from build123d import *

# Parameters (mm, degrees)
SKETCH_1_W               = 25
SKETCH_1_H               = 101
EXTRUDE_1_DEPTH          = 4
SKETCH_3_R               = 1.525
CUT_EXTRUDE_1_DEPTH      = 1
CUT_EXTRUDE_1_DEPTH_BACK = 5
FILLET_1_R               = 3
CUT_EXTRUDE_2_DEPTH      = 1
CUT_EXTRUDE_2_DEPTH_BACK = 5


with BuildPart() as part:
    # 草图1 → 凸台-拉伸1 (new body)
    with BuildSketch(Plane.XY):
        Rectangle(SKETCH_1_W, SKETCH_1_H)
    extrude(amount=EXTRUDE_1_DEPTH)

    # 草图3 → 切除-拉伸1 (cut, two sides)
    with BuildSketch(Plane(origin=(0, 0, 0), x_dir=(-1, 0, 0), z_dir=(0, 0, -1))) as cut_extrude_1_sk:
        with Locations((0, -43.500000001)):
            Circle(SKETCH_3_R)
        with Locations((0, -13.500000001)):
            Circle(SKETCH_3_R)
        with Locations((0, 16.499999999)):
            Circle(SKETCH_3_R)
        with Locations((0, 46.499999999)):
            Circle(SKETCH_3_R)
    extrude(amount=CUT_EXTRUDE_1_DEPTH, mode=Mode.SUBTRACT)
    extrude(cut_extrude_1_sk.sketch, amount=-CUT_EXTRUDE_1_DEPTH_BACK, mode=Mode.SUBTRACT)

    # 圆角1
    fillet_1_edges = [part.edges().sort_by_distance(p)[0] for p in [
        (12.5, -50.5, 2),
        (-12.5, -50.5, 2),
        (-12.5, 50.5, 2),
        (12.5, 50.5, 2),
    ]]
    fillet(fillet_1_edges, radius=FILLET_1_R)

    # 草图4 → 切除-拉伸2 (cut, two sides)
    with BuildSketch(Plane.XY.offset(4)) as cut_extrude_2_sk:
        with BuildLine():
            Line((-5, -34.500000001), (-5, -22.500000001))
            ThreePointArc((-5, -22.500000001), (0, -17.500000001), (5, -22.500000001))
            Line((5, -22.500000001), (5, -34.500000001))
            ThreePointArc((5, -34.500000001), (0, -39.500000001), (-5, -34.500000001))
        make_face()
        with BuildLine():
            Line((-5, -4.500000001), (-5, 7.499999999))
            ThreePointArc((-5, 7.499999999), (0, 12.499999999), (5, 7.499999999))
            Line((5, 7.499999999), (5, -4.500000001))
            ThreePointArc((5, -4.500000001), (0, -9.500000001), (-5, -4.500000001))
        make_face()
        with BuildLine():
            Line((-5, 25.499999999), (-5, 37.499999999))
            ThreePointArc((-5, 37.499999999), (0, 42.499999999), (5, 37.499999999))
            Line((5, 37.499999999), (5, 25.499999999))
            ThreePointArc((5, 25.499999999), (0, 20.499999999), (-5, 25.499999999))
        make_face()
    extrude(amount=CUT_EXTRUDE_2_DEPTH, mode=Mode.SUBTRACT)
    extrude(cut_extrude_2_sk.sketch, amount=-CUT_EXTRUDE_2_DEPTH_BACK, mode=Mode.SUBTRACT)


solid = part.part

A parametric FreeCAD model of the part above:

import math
import FreeCAD as App
import Part
import Sketcher

V = App.Vector


def edges_at(feature, points):
    """Names of the edges that pass closest to the given points."""
    edges = feature.Shape.Edges
    near = lambda p: min(range(len(edges)), key=lambda i: edges[i].distToShape(Part.Vertex(*p))[0])
    return sorted({f"Edge{near(p) + 1}" for p in points})


def add_polygon(sketch, points):
    """Adds a closed chain of lines whose ends are joined by coincident constraints."""
    first, n = sketch.GeometryCount, len(points)
    for a, b in zip(points, points[1:] + points[:1]):
        sketch.addGeometry(Part.LineSegment(App.Vector(*a, 0), App.Vector(*b, 0)), False)
    for i in range(n):
        sketch.addConstraint(Sketcher.Constraint("Coincident", first + i, 2, first + (i + 1) % n, 1))

doc = App.newDocument("Part")
body = doc.addObject("PartDesign::Body", "Body")

# Sketch on XY plane
sketch1 = body.newObject("Sketcher::SketchObject", "Sketch")
sketch1.AttachmentSupport = (doc.getObject("XY_Plane"), [""])
sketch1.MapMode = "FlatFace"
add_polygon(sketch1, [(-12, 50), (-12, -50), (12, -50), (12, 50)])  # lines 0-3
sketch1.addConstraint([
    Sketcher.Constraint("Vertical", 0),
    Sketcher.Constraint("Horizontal", 1),
    Sketcher.Constraint("Vertical", 2),
    Sketcher.Constraint("Horizontal", 3),
    Sketcher.Constraint("Symmetric", 0, 2, 2, 2, -1, 1),
    Sketcher.Constraint("DistanceX", 1, 1, 1, 2, 25.0),
    Sketcher.Constraint("DistanceY", 0, 2, 0, 1, 101.0),
])
pad1 = body.newObject("PartDesign::Pad", "Pad")
pad1.Profile = sketch1
pad1.Length = 4

# Sketch on XY plane
sketch2 = body.newObject("Sketcher::SketchObject", "Sketch001")
sketch2.AttachmentSupport = (doc.getObject("XY_Plane"), [""])
sketch2.MapMode = "FlatFace"
sketch2.addGeometry([
    Part.Circle(V(0, -43.5, 0), V(0, 0, 1), 1.5),
    Part.Circle(V(0, -13.5, 0), V(0, 0, 1), 1.5),
    Part.Circle(V(0, 16.5, 0), V(0, 0, 1), 1.5),
    Part.Circle(V(0, 46.5, 0), V(0, 0, 1), 1.5),
], False)
sketch2.addConstraint([
    Sketcher.Constraint("Equal", 0, 1),
    Sketcher.Constraint("Equal", 1, 2),
    Sketcher.Constraint("Equal", 2, 3),
    Sketcher.Constraint("PointOnObject", 0, 3, -2),
    Sketcher.Constraint("PointOnObject", 1, 3, -2),
    Sketcher.Constraint("PointOnObject", 2, 3, -2),
    Sketcher.Constraint("PointOnObject", 3, 3, -2),
    Sketcher.Constraint("Diameter", 0, 3.05),
    Sketcher.Constraint("DistanceY", 0, 3, 1, 3, 30.0),
    Sketcher.Constraint("DistanceY", 1, 3, 2, 3, 30.0),
    Sketcher.Constraint("DistanceY", 2, 3, 3, 3, 30.0),
    Sketcher.Constraint("DistanceY", 0, 3, -1, 1, 43.5),
])
pocket1 = body.newObject("PartDesign::Pocket", "Pocket")
pocket1.Profile = sketch2
pocket1.Type = "ThroughAll"
pocket1.Midplane = True
doc.recompute()

fillet = body.newObject("PartDesign::Fillet", "Fillet")
fillet.Base = (pocket1, edges_at(pocket1, [
    (12.5, -50.5, 2),
    (-12.5, -50.5, 2),
    (-12.5, 50.5, 2),
    (12.5, 50.5, 2),
]))
fillet.Radius = 3

# Sketch on XY plane
sketch3 = body.newObject("Sketcher::SketchObject", "Sketch002")
sketch3.AttachmentSupport = (doc.getObject("XY_Plane"), [""])
sketch3.MapMode = "FlatFace"
sketch3.AttachmentOffset = App.Placement(V(0, 0, 4), App.Rotation())
sketch3.addGeometry([
    Part.LineSegment(V(-5, -23, 0), V(-5, -35, 0)),  # 0
    Part.ArcOfCircle(Part.Circle(V(0, -35, 0), V(0, 0, 1), 5), math.radians(180), math.radians(360)),  # 1
    Part.LineSegment(V(5, -35, 0), V(5, -23, 0)),  # 2
    Part.ArcOfCircle(Part.Circle(V(0, -23, 0), V(0, 0, 1), 5), math.radians(0), math.radians(180)),  # 3
    Part.LineSegment(V(-5, 7, 0), V(-5, -5, 0)),  # 4
    Part.ArcOfCircle(Part.Circle(V(0, -5, 0), V(0, 0, 1), 5), math.radians(180), math.radians(360)),  # 5
    Part.LineSegment(V(5, -5, 0), V(5, 7, 0)),  # 6
    Part.ArcOfCircle(Part.Circle(V(0, 7, 0), V(0, 0, 1), 5), math.radians(0), math.radians(180)),  # 7
    Part.LineSegment(V(-5, 37, 0), V(-5, 25, 0)),  # 8
    Part.ArcOfCircle(Part.Circle(V(0, 25, 0), V(0, 0, 1), 5), math.radians(180), math.radians(360)),  # 9
    Part.LineSegment(V(5, 25, 0), V(5, 37, 0)),  # 10
    Part.ArcOfCircle(Part.Circle(V(0, 37, 0), V(0, 0, 1), 5), math.radians(0), math.radians(180)),  # 11
], False)
sketch3.addConstraint([
    Sketcher.Constraint("Tangent", 0, 2, 1, 1),
    Sketcher.Constraint("Tangent", 1, 2, 2, 1),
    Sketcher.Constraint("Tangent", 2, 2, 3, 1),
    Sketcher.Constraint("Tangent", 3, 2, 0, 1),
    Sketcher.Constraint("Tangent", 4, 2, 5, 1),
    Sketcher.Constraint("Tangent", 5, 2, 6, 1),
    Sketcher.Constraint("Tangent", 6, 2, 7, 1),
    Sketcher.Constraint("Tangent", 7, 2, 4, 1),
    Sketcher.Constraint("Tangent", 8, 2, 9, 1),
    Sketcher.Constraint("Tangent", 9, 2, 10, 1),
    Sketcher.Constraint("Tangent", 10, 2, 11, 1),
    Sketcher.Constraint("Tangent", 11, 2, 8, 1),
    Sketcher.Constraint("Vertical", 0),
    Sketcher.Constraint("Vertical", 2),
    Sketcher.Constraint("Vertical", 4),
    Sketcher.Constraint("Vertical", 6),
    Sketcher.Constraint("Vertical", 8),
    Sketcher.Constraint("Vertical", 10),
    Sketcher.Constraint("Equal", 3, 5),
    Sketcher.Constraint("Equal", 7, 9),
    Sketcher.Constraint("PointOnObject", 1, 3, -2),
    Sketcher.Constraint("PointOnObject", 5, 3, -2),
    Sketcher.Constraint("PointOnObject", 9, 3, -2),
    Sketcher.Constraint("Equal", 2, 4),
    Sketcher.Constraint("Equal", 6, 8),
    Sketcher.Constraint("Radius", 1, 5.0),
    Sketcher.Constraint("DistanceY", 0, 2, 0, 1, 12.0),
    Sketcher.Constraint("DistanceY", 3, 3, 5, 3, 18.0),
    Sketcher.Constraint("DistanceY", 7, 3, 9, 3, 18.0),
    Sketcher.Constraint("DistanceY", 1, 3, -1, 1, 34.5),
])
pocket2 = body.newObject("PartDesign::Pocket", "Pocket001")
pocket2.Profile = sketch3
pocket2.Type = "ThroughAll"
pocket2.Midplane = True

doc.recompute()
